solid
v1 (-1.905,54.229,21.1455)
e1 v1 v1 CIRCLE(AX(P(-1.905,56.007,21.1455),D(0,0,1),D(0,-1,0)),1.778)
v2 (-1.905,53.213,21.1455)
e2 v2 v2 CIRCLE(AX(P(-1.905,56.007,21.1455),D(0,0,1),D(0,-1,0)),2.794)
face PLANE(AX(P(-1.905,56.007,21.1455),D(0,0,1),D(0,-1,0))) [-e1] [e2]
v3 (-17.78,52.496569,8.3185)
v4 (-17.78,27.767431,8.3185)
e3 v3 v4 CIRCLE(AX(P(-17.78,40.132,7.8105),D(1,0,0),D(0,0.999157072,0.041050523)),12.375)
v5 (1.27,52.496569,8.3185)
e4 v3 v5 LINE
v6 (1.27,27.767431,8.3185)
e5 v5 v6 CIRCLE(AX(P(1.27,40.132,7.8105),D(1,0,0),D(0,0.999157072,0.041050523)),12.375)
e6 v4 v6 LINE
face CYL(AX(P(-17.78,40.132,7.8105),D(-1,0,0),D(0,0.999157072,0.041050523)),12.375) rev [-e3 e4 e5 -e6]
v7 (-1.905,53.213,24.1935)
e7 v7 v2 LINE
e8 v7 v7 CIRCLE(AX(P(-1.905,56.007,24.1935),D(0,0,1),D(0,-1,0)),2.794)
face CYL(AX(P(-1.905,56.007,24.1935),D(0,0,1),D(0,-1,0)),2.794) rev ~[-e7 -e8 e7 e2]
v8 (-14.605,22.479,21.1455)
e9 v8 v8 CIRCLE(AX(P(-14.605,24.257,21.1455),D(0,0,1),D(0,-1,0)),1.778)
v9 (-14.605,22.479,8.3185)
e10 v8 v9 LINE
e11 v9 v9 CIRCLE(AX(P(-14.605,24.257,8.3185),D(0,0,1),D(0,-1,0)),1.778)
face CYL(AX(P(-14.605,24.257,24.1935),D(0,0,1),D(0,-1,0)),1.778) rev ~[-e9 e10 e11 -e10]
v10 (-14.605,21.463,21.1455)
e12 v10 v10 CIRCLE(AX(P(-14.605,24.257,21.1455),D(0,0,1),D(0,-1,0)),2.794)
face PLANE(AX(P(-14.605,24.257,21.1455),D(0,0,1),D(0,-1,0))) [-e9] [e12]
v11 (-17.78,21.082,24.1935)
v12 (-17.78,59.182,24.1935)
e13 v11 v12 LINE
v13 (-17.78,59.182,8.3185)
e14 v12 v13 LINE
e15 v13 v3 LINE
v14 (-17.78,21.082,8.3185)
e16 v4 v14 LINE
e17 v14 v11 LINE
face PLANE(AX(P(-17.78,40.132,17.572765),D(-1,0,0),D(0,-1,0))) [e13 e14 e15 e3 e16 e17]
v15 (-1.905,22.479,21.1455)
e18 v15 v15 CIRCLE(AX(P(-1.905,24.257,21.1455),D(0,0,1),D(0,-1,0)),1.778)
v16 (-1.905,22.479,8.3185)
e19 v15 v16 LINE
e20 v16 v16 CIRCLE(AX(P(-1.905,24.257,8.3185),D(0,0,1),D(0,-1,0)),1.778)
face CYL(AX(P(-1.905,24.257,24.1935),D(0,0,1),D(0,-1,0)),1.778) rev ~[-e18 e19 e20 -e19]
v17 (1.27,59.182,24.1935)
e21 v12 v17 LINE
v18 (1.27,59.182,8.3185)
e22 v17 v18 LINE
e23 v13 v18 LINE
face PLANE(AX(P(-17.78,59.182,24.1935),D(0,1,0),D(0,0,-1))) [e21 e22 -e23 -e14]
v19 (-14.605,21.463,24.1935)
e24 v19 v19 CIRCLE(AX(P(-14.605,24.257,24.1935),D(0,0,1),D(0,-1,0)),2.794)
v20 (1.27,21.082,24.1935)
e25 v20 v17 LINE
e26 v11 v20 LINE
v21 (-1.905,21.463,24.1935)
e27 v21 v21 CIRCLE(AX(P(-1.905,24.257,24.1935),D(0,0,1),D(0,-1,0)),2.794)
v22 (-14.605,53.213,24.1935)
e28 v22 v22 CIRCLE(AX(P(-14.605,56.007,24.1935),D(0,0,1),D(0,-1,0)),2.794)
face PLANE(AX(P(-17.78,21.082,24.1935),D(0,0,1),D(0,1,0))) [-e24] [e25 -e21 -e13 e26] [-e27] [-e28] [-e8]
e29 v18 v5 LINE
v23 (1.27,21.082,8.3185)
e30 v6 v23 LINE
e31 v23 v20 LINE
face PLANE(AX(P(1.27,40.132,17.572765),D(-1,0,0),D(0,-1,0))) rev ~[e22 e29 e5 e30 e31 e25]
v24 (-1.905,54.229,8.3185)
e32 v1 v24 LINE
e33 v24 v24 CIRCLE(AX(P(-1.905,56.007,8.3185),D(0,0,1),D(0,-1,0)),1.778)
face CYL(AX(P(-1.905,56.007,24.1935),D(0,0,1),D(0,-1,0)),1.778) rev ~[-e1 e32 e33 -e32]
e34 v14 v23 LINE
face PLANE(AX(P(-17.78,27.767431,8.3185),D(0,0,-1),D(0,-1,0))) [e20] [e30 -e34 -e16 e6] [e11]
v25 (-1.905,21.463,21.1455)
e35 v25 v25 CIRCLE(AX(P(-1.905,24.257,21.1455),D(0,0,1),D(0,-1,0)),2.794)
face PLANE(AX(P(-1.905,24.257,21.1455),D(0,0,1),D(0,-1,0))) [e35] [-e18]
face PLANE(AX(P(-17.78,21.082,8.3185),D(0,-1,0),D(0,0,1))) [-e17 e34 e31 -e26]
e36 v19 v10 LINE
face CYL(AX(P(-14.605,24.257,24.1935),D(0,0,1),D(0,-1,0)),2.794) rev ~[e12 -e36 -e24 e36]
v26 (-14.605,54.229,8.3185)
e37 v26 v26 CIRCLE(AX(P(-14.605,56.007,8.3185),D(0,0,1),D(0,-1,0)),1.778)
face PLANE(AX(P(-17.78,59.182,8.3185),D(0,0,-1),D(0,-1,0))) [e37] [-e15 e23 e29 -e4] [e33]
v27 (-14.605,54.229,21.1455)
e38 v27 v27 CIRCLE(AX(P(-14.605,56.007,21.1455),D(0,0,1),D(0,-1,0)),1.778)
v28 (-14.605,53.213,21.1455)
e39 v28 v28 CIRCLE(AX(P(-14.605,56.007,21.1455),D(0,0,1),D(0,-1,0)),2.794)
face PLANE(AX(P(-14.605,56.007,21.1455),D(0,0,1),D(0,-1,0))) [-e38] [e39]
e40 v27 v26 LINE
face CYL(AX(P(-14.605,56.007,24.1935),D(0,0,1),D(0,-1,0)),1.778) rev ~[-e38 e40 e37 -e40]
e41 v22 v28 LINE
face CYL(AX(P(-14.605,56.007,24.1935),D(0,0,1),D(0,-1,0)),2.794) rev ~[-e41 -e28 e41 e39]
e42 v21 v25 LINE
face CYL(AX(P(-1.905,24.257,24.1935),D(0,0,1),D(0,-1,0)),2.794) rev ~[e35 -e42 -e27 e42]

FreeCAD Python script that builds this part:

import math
import FreeCAD as App
import Part
import Sketcher
from FreeCAD import Vector
Q = App.Units.Quantity

doc = App.newDocument("Part")
body = doc.addObject("PartDesign::Body", "Body")

# Sketch on YZ plane
sketch1 = body.newObject("Sketcher::SketchObject", "Sketch")
sketch1.AttachmentSupport = (doc.getObject("YZ_Plane"), [""])
sketch1.MapMode = "FlatFace"
sketch1.addGeometry([
    Part.LineSegment(Vector(-19, 8, 0), Vector(-19, -8, 0)),  # 0
    Part.LineSegment(Vector(-19, -8, 0), Vector(-12, -8, 0)),  # 1
    Part.ArcOfCircle(Part.Circle(Vector(0, -8, 0), Vector(0, 0, 1), 12), math.radians(2), math.radians(178)),  # 2
    Part.LineSegment(Vector(12, -8, 0), Vector(19, -8, 0)),  # 3
    Part.LineSegment(Vector(19, -8, 0), Vector(19, 8, 0)),  # 4
    Part.LineSegment(Vector(19, 8, 0), Vector(-19, 8, 0)),  # 5
], False)
sketch1.addConstraint([
    Sketcher.Constraint("Coincident", 0, 2, 1, 1),
    Sketcher.Constraint("Coincident", 1, 2, 2, 2),
    Sketcher.Constraint("Coincident", 2, 1, 3, 1),
    Sketcher.Constraint("Coincident", 3, 2, 4, 1),
    Sketcher.Constraint("Coincident", 4, 2, 5, 1),
    Sketcher.Constraint("Coincident", 5, 2, 0, 1),
    Sketcher.Constraint("Vertical", 0),
    Sketcher.Constraint("Horizontal", 1),
    Sketcher.Constraint("Horizontal", 3),
    Sketcher.Constraint("Vertical", 4),
    Sketcher.Constraint("Horizontal", 5),
    Sketcher.Constraint("Symmetric", 0, 2, 4, 2, -1, 1),
    Sketcher.Constraint("Symmetric", 1, 2, 2, 1, -2),
    Sketcher.Constraint("DistanceX", 5, 2, 5, 1, Q("1.5 in")),
    Sketcher.Constraint("DistanceY", 0, 2, 0, 1, Q("0.625 in")),
    Sketcher.Constraint("Radius", 2, Q("12.375 mm")),
    Sketcher.Constraint("DistanceY", 2, 3, 0, 2, Q("0.02 in")),
])
pad1 = body.newObject("PartDesign::Pad", "Pad")
pad1.Profile = sketch1
pad1.Length = Q("0.75 in")

# Sketch on XY plane
sketch2 = body.newObject("Sketcher::SketchObject", "Sketch001")
sketch2.AttachmentSupport = (doc.getObject("XY_Plane"), [""])
sketch2.MapMode = "FlatFace"
sketch2.AttachmentOffset = App.Placement(Vector(0, 0, 0.3125 * 25.4), App.Rotation())
sketch2.addGeometry([
    Part.Circle(Vector(15.9, -15.9, 0), Vector(0, 0, 1), 1.8),
    Part.Circle(Vector(3.2, -15.9, 0), Vector(0, 0, 1), 1.8),
    Part.Circle(Vector(15.9, 15.9, 0), Vector(0, 0, 1), 1.8),
    Part.Circle(Vector(3.2, 15.9, 0), Vector(0, 0, 1), 1.8),
], False)
sketch2.addConstraint([
    Sketcher.Constraint("Equal", 0, 1),
    Sketcher.Constraint("Equal", 1, 2),
    Sketcher.Constraint("Equal", 2, 3),
    Sketcher.Constraint("Symmetric", 0, 3, 2, 3, -1),
    Sketcher.Constraint("Symmetric", 1, 3, 3, 3, -1),
    Sketcher.Constraint("Horizontal", 0, 3, 1, 3),
    Sketcher.Constraint("Diameter", 0, Q("0.14 in")),
    Sketcher.Constraint("DistanceX", 1, 3, 0, 3, Q("0.5 in")),
    Sketcher.Constraint("DistanceY", 0, 3, 2, 3, Q("1.25 in")),
    Sketcher.Constraint("DistanceX", -1, 1, 0, 3, Q("0.625 in")),
])
pocket1 = body.newObject("PartDesign::Pocket", "Pocket")
pocket1.Profile = sketch2
pocket1.Type = "ThroughAll"

# Sketch on XY plane
sketch3 = body.newObject("Sketcher::SketchObject", "Sketch002")
sketch3.AttachmentSupport = (doc.getObject("XY_Plane"), [""])
sketch3.MapMode = "FlatFace"
sketch3.AttachmentOffset = App.Placement(Vector(0, 0, 0.3125 * 25.4), App.Rotation())
sketch3.addGeometry([
    Part.Circle(Vector(15.9, -15.9, 0), Vector(0, 0, 1), 2.8),
    Part.Circle(Vector(3.2, -15.9, 0), Vector(0, 0, 1), 2.8),
    Part.Circle(Vector(15.9, 15.9, 0), Vector(0, 0, 1), 2.8),
    Part.Circle(Vector(3.2, 15.9, 0), Vector(0, 0, 1), 2.8),
], False)
sketch3.addConstraint([
    Sketcher.Constraint("Equal", 0, 1),
    Sketcher.Constraint("Equal", 1, 2),
    Sketcher.Constraint("Equal", 2, 3),
    Sketcher.Constraint("Symmetric", 0, 3, 2, 3, -1),
    Sketcher.Constraint("Symmetric", 1, 3, 3, 3, -1),
    Sketcher.Constraint("Horizontal", 0, 3, 1, 3),
    Sketcher.Constraint("Diameter", 0, Q("0.22 in")),
    Sketcher.Constraint("DistanceX", 1, 3, 0, 3, Q("0.5 in")),
    Sketcher.Constraint("DistanceY", 0, 3, 2, 3, Q("1.25 in")),
    Sketcher.Constraint("DistanceX", -1, 1, 0, 3, Q("0.625 in")),
])
pocket2 = body.newObject("PartDesign::Pocket", "Pocket001")
pocket2.Profile = sketch3
pocket2.Length = Q("0.12 in")
body2 = doc.addObject("PartDesign::Body", "Body001")
doc.recompute()

body.Placement = App.Placement(Vector(-17.78, 40.132, 16.256), App.Rotation(Vector(0, 0, 1), 0))
boolean = body2.newObject("PartDesign::Boolean", "Boolean")
boolean.Type = "Fuse"
boolean.addObjects([body])

doc.recompute()
